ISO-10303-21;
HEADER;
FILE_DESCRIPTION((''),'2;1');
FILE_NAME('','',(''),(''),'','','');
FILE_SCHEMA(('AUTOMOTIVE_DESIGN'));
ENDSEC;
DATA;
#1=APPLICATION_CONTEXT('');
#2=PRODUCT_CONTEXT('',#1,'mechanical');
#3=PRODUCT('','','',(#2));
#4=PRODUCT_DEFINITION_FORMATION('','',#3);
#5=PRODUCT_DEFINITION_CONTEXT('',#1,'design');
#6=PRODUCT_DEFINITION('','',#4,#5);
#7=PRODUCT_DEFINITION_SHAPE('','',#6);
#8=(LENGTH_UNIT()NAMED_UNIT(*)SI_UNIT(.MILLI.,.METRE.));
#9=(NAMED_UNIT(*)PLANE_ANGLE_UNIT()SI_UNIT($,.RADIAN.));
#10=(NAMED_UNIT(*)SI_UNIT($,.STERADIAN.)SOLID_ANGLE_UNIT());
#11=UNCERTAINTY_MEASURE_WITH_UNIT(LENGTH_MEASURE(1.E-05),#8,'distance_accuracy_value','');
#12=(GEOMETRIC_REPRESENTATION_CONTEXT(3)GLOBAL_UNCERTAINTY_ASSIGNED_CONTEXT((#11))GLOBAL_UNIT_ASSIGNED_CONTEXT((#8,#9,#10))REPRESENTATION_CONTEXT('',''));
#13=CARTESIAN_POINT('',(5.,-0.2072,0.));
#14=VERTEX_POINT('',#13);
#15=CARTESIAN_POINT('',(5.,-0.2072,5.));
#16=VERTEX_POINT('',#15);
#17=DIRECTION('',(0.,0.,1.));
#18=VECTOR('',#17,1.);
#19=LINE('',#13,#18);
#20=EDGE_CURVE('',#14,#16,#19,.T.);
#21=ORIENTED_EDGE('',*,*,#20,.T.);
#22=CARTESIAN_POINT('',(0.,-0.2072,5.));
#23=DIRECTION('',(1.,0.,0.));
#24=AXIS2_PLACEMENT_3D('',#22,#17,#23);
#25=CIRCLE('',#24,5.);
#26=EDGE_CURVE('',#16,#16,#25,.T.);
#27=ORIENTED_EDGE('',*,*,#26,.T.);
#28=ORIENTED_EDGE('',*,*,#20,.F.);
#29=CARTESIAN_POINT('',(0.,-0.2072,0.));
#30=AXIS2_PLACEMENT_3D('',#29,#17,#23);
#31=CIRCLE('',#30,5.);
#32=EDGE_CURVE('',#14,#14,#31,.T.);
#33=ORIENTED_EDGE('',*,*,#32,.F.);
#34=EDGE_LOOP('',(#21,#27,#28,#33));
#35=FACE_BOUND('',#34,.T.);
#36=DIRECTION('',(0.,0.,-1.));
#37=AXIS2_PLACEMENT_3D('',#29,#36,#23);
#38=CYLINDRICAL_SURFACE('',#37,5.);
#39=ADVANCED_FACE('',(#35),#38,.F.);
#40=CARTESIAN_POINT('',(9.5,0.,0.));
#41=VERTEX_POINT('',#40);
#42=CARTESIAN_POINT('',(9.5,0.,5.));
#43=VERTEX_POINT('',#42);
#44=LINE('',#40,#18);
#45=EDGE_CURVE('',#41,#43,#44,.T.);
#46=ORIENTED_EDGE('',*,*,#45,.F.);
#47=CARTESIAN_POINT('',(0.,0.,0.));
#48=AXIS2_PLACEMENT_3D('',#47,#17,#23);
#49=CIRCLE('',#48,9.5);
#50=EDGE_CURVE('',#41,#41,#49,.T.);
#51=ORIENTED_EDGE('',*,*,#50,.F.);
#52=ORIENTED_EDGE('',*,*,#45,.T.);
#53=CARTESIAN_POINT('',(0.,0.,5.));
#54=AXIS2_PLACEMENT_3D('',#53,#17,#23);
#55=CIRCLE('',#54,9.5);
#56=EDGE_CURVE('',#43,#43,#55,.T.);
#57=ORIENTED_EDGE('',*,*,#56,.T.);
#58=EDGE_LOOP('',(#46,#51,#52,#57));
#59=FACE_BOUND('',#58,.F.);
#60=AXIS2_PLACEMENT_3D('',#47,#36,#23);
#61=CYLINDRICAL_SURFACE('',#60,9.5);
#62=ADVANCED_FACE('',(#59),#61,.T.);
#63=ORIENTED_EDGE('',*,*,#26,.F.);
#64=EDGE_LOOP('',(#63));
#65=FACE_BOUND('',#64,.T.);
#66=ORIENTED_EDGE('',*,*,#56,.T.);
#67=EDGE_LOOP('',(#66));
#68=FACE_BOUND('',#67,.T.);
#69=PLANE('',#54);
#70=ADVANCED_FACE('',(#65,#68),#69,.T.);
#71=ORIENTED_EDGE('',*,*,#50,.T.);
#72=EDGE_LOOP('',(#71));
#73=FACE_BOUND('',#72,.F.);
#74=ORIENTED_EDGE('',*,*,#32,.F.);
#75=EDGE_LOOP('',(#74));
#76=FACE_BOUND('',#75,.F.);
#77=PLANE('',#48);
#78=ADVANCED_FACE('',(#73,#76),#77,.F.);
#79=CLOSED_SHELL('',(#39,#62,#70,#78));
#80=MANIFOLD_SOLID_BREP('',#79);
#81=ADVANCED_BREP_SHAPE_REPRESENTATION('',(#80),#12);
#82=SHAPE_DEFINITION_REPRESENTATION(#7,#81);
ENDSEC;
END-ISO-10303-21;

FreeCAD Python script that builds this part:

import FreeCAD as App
import Part
import Sketcher

V = App.Vector

doc = App.newDocument("Part")
body = doc.addObject("PartDesign::Body", "Body")

# Sketch on XY plane
sketch1 = doc.addObject("Sketcher::SketchObject", "Sketch")
body.addObject(sketch1)
sketch1.AttachmentSupport = (doc.XY_Plane, [""])
sketch1.MapMode = "FlatFace"
sketch1.addGeometry(Part.Circle(V(0, 0, 0), V(0, 0, 1), 9.5), False)
sketch1.addGeometry(Part.Circle(V(0, -0.2072, 0), V(0, 0, 1), 5), False)
sketch1.addConstraint(Sketcher.Constraint("Coincident", 0, 3, -1, 1))
sketch1.addConstraint(Sketcher.Constraint("PointOnObject", 1, 3, -2))
sketch1.addConstraint(Sketcher.Constraint("Diameter", 0, 19.0))
sketch1.addConstraint(Sketcher.Constraint("Diameter", 1, 10.0))
sketch1.addConstraint(Sketcher.Constraint("DistanceY", 1, 3, -1, 1, 0.2072))
pad1 = doc.addObject("PartDesign::Pad", "Pad")
body.addObject(pad1)
pad1.Profile = sketch1
pad1.Length = 5

doc.recompute()
